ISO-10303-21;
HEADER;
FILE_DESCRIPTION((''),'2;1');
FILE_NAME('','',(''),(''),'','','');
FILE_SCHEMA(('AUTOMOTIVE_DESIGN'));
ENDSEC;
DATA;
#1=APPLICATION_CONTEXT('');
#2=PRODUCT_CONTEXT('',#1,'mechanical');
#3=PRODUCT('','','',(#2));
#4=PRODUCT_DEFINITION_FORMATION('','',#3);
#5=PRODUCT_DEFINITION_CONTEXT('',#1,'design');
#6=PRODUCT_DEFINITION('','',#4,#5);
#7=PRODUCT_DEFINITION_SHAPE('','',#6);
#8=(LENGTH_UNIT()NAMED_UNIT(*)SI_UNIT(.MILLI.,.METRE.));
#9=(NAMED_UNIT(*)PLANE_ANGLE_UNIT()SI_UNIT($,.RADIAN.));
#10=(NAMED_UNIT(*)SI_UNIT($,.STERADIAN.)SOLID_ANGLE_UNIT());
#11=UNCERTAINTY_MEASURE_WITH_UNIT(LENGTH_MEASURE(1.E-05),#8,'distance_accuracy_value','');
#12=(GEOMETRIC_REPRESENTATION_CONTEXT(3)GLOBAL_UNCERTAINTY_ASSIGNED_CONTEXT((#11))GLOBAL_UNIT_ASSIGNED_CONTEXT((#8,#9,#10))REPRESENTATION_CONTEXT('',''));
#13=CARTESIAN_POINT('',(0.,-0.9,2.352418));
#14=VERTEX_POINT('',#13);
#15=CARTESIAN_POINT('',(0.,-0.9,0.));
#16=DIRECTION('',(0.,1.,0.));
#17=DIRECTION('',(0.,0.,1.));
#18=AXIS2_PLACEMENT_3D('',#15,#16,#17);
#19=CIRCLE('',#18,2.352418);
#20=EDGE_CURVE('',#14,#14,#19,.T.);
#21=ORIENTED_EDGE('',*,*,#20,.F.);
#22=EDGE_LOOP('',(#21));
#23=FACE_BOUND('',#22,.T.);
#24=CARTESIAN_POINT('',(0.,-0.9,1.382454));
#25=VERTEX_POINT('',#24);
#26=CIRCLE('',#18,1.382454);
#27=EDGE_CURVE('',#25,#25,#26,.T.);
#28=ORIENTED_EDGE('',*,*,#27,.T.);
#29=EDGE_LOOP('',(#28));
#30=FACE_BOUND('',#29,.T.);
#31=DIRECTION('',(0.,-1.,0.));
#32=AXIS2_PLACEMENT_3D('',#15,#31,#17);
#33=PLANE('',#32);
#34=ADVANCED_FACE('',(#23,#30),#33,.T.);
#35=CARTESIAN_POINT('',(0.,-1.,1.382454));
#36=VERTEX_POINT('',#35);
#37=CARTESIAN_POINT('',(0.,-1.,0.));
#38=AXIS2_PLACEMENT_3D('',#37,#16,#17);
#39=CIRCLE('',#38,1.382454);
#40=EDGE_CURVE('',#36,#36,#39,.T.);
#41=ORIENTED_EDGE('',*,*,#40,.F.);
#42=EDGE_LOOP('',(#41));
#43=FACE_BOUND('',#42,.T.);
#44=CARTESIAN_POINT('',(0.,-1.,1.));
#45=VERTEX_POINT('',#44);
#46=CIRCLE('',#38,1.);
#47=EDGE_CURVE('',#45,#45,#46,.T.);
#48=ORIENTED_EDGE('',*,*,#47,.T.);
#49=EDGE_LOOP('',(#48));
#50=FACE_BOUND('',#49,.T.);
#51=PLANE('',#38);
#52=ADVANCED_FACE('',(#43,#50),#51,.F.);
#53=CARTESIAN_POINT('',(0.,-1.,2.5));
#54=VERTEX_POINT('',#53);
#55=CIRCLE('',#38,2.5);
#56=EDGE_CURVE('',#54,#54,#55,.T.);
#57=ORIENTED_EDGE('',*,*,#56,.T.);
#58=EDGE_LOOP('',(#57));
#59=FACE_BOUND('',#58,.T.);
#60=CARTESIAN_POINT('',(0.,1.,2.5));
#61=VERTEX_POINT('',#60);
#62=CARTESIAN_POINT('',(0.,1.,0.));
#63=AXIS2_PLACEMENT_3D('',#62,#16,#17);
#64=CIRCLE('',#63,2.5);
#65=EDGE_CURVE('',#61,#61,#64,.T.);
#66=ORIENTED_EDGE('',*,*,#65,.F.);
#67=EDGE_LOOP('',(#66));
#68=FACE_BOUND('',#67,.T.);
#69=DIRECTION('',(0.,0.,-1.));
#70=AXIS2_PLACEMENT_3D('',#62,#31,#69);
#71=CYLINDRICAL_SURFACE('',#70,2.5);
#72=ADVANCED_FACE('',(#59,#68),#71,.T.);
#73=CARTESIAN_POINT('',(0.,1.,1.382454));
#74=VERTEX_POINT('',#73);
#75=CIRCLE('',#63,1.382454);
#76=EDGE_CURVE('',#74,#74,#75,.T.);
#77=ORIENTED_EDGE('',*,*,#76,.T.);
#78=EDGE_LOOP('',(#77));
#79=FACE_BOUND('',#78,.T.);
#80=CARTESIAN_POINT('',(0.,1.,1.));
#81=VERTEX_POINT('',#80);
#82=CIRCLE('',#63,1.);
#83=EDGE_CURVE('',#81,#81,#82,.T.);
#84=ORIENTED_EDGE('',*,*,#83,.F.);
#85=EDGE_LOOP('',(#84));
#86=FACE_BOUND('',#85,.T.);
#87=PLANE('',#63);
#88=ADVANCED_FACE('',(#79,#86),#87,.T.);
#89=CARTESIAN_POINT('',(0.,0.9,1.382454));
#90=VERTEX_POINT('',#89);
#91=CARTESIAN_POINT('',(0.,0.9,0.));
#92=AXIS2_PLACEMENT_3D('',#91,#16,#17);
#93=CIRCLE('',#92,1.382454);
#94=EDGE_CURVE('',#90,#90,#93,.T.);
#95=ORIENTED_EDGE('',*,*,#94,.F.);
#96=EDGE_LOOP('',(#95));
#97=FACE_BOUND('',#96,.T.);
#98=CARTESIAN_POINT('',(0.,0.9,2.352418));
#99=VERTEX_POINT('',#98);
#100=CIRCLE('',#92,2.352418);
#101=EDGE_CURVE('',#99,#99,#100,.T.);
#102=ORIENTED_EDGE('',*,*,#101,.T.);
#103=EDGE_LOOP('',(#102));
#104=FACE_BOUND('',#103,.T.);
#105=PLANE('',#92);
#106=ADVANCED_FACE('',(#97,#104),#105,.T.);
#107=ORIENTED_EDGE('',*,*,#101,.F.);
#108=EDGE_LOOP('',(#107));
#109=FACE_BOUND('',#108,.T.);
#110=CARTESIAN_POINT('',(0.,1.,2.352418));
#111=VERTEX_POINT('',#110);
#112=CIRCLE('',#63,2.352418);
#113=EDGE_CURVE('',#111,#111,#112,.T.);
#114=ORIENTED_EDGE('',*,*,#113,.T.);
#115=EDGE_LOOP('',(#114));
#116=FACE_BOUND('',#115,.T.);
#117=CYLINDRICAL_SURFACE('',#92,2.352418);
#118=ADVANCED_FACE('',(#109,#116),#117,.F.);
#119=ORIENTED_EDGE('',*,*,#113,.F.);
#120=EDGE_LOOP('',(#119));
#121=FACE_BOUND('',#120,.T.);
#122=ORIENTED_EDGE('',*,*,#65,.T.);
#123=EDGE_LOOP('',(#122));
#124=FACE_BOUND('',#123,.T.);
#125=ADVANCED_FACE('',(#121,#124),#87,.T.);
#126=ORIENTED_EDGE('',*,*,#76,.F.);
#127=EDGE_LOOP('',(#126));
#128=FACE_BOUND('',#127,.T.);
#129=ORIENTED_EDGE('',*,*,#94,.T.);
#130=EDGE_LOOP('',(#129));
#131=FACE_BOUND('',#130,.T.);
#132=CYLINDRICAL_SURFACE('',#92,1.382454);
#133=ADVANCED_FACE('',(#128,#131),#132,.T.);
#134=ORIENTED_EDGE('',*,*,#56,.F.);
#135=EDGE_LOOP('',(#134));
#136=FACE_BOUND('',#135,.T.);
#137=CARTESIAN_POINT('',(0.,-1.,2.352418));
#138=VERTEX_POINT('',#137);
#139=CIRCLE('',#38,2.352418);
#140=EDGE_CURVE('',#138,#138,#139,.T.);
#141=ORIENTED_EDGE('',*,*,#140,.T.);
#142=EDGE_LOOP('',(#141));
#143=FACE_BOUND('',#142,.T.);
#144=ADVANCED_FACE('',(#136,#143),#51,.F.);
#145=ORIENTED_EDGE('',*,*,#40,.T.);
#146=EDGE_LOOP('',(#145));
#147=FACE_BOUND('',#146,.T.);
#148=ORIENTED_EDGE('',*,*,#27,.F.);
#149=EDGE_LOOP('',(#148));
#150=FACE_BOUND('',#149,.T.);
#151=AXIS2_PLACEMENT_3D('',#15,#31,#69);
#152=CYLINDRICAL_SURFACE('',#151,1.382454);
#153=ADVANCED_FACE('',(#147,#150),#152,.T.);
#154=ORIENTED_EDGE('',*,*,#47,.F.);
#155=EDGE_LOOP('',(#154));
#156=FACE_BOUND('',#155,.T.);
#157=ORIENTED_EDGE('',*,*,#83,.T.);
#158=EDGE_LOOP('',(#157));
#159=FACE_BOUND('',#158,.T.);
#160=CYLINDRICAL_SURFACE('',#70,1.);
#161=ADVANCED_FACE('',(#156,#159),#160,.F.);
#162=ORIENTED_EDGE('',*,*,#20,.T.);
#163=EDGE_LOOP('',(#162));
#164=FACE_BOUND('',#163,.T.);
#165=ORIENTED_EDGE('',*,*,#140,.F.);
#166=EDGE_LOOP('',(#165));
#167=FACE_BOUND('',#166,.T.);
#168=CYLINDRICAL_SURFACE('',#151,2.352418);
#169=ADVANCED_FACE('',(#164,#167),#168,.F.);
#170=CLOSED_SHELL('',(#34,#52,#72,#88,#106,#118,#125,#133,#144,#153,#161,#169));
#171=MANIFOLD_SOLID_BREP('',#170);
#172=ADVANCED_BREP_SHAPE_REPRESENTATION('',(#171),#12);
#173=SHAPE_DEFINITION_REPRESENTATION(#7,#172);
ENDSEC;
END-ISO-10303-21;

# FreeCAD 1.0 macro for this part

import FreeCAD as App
import Part
import Sketcher

V = App.Vector

doc = App.newDocument("Part")
body = doc.addObject("PartDesign::Body", "Body")

sketch1 = body.newObject("Sketcher::SketchObject", "Sketch")
sketch1.AttachmentSupport = (doc.getObject("XZ_Plane"), [""])
sketch1.MapMode = "FlatFace"
sketch1.addGeometry([
    Part.Circle(V(0, 0, 0), V(0, 0, 1), 2.5),
    Part.Circle(V(0, 0, 0), V(0, 0, 1), 1),
], False)
sketch1.addConstraint([
    Sketcher.Constraint("Coincident", 0, 3, -1, 1),
    Sketcher.Constraint("Coincident", 1, 3, -1, 1),
    Sketcher.Constraint("Diameter", 0, 5.0),
    Sketcher.Constraint("Diameter", 1, 2.0),
])
pad1 = body.newObject("PartDesign::Pad", "Pad")
pad1.Profile = sketch1
pad1.Length = 2
pad1.Midplane = True

sketch2 = body.newObject("Sketcher::SketchObject", "Sketch001")
sketch2.AttachmentSupport = (doc.getObject("XZ_Plane"), [""])
sketch2.MapMode = "FlatFace"
sketch2.AttachmentOffset = App.Placement(V(0, 0, -1), App.Rotation())
sketch2.addGeometry([
    Part.Circle(V(0, 0, 0), V(0, 0, 1), 2.4),
    Part.Circle(V(0, 0, 0), V(0, 0, 1), 1.4),
], False)
sketch2.addConstraint([
    Sketcher.Constraint("Coincident", 0, 3, -1, 1),
    Sketcher.Constraint("Coincident", 1, 3, -1, 1),
    Sketcher.Constraint("Diameter", 1, 2.764909),
    Sketcher.Constraint("Diameter", 0, 4.704837),
])
pocket1 = body.newObject("PartDesign::Pocket", "Pocket")
pocket1.Profile = sketch2
pocket1.Length = 0.1
pocket1.Reversed = True
doc.recompute()

mirrored = body.newObject("PartDesign::Mirrored", "Mirrored")
mirrored.Originals = [pocket1]
mirrored.MirrorPlane = (doc.getObject("XZ_Plane"), [""])
body.Tip = mirrored

doc.recompute()
